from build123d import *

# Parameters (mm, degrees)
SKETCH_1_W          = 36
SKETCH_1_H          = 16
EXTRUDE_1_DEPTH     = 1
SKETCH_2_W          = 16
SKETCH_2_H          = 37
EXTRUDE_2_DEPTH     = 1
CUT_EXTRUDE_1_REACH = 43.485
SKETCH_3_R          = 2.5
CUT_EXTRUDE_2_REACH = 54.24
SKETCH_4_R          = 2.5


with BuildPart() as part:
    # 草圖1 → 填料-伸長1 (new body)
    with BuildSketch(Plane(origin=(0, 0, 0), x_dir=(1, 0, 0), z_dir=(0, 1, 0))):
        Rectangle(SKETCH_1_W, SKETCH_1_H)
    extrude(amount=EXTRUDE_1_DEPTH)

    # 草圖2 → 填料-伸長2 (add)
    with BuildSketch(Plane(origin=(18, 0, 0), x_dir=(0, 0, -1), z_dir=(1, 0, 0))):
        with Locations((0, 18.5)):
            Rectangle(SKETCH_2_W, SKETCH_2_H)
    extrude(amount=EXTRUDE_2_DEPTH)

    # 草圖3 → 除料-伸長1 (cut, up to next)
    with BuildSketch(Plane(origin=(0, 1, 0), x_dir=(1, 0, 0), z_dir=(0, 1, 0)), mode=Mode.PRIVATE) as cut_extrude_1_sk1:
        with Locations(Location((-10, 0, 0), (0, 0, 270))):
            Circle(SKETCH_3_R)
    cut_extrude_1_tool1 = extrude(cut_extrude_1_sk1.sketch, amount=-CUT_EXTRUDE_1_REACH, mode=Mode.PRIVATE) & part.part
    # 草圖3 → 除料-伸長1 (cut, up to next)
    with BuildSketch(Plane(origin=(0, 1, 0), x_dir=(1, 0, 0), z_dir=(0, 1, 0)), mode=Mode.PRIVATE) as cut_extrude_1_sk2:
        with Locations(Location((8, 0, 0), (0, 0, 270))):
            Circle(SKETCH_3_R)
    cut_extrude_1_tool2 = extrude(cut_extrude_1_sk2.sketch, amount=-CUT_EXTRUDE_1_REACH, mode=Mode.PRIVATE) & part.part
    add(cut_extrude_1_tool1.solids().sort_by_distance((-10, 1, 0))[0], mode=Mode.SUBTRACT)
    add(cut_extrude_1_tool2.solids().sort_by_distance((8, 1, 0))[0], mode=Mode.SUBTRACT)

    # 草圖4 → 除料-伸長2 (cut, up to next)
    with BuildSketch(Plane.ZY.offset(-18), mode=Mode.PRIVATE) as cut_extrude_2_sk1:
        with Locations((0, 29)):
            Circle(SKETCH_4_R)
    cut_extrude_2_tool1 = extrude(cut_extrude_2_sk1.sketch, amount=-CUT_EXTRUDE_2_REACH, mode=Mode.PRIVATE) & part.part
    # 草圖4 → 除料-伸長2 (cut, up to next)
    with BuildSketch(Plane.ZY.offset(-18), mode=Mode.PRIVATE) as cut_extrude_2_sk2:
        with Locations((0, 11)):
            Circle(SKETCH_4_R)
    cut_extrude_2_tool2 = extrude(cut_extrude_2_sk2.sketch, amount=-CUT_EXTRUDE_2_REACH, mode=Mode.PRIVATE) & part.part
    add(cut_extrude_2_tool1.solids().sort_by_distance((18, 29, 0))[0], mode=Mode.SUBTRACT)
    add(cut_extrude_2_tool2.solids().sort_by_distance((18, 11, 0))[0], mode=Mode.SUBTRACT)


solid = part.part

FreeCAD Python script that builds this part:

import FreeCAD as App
import Part
import Sketcher
from FreeCAD import Vector

doc = App.newDocument("Part")
body = doc.addObject("PartDesign::Body", "Body")

# Sketch on XZ plane
sketch1 = body.newObject("Sketcher::SketchObject", "Sketch")
sketch1.AttachmentSupport = (doc.getObject("XZ_Plane"), [""])
sketch1.MapMode = "FlatFace"
sketch1.addGeometry([
    Part.LineSegment(Vector(-18, -8, 0), Vector(-18, 8, 0)),
    Part.LineSegment(Vector(-18, 8, 0), Vector(18, 8, 0)),
    Part.LineSegment(Vector(18, 8, 0), Vector(18, -8, 0)),
    Part.LineSegment(Vector(18, -8, 0), Vector(-18, -8, 0)),
], False)
sketch1.addConstraint([
    Sketcher.Constraint("Coincident", 0, 2, 1, 1),
    Sketcher.Constraint("Coincident", 1, 2, 2, 1),
    Sketcher.Constraint("Coincident", 2, 2, 3, 1),
    Sketcher.Constraint("Coincident", 3, 2, 0, 1),
    Sketcher.Constraint("Vertical", 0),
    Sketcher.Constraint("Horizontal", 1),
    Sketcher.Constraint("Vertical", 2),
    Sketcher.Constraint("Horizontal", 3),
    Sketcher.Constraint("Symmetric", 0, 2, 2, 2, -1, 1),
    Sketcher.Constraint("DistanceX", 1, 1, 1, 2, 36.0),
    Sketcher.Constraint("DistanceY", 0, 1, 0, 2, 16.0),
])
pad1 = body.newObject("PartDesign::Pad", "Pad")
pad1.Profile = sketch1
pad1.Length = 1
pad1.Reversed = True

# Sketch on YZ plane
sketch2 = body.newObject("Sketcher::SketchObject", "Sketch001")
sketch2.AttachmentSupport = (doc.getObject("YZ_Plane"), [""])
sketch2.MapMode = "FlatFace"
sketch2.AttachmentOffset = App.Placement(Vector(0, 0, 18), App.Rotation())
sketch2.addGeometry([
    Part.LineSegment(Vector(37, 8, 0), Vector(0, 8, 0)),
    Part.LineSegment(Vector(0, 8, 0), Vector(0, -8, 0)),
    Part.LineSegment(Vector(0, -8, 0), Vector(37, -8, 0)),
    Part.LineSegment(Vector(37, -8, 0), Vector(37, 8, 0)),
], False)
sketch2.addConstraint([
    Sketcher.Constraint("Coincident", 0, 2, 1, 1),
    Sketcher.Constraint("Coincident", 1, 2, 2, 1),
    Sketcher.Constraint("Coincident", 2, 2, 3, 1),
    Sketcher.Constraint("Coincident", 3, 2, 0, 1),
    Sketcher.Constraint("Horizontal", 0),
    Sketcher.Constraint("Vertical", 1),
    Sketcher.Constraint("Horizontal", 2),
    Sketcher.Constraint("Vertical", 3),
    Sketcher.Constraint("Symmetric", 0, 2, 1, 2, -1, 1),
    Sketcher.Constraint("DistanceX", 0, 2, 0, 1, 37.0),
    Sketcher.Constraint("DistanceY", 1, 2, 1, 1, 16.0),
])
pad2 = body.newObject("PartDesign::Pad", "Pad001")
pad2.Profile = sketch2
pad2.Length = 1

# Sketch on XZ plane
sketch3 = body.newObject("Sketcher::SketchObject", "Sketch002")
sketch3.AttachmentSupport = (doc.getObject("XZ_Plane"), [""])
sketch3.MapMode = "FlatFace"
sketch3.AttachmentOffset = App.Placement(Vector(0, 0, -1), App.Rotation())
sketch3.addGeometry(Part.Circle(Vector(-10, 0, 0), Vector(0, 0, 1), 2.5), False)
sketch3.addConstraint([
    Sketcher.Constraint("PointOnObject", 0, 3, -1),
    Sketcher.Constraint("Diameter", 0, 5.0),
    Sketcher.Constraint("DistanceX", 0, 3, -1, 1, 10.0),
])
pocket1 = body.newObject("PartDesign::Pocket", "Pocket")
pocket1.Profile = sketch3
pocket1.Type = "UpToFirst"
pocket1.Reversed = True

# Sketch on XZ plane
sketch4 = body.newObject("Sketcher::SketchObject", "Sketch003")
sketch4.AttachmentSupport = (doc.getObject("XZ_Plane"), [""])
sketch4.MapMode = "FlatFace"
sketch4.AttachmentOffset = App.Placement(Vector(0, 0, -1), App.Rotation())
sketch4.addGeometry(Part.Circle(Vector(8, 0, 0), Vector(0, 0, 1), 2.5), False)
sketch4.addConstraint([
    Sketcher.Constraint("PointOnObject", 0, 3, -1),
    Sketcher.Constraint("Diameter", 0, 5.0),
    Sketcher.Constraint("DistanceX", -1, 1, 0, 3, 8.0),
])
pocket2 = body.newObject("PartDesign::Pocket", "Pocket001")
pocket2.Profile = sketch4
pocket2.Type = "UpToFirst"
pocket2.Reversed = True

# Sketch on YZ plane
sketch5 = body.newObject("Sketcher::SketchObject", "Sketch004")
sketch5.AttachmentSupport = (doc.getObject("YZ_Plane"), [""])
sketch5.MapMode = "FlatFace"
sketch5.AttachmentOffset = App.Placement(Vector(0, 0, 18), App.Rotation())
sketch5.addGeometry(Part.Circle(Vector(29, 0, 0), Vector(0, 0, 1), 2.5), False)
sketch5.addConstraint([
    Sketcher.Constraint("PointOnObject", 0, 3, -1),
    Sketcher.Constraint("Diameter", 0, 5.0),
    Sketcher.Constraint("DistanceX", -1, 1, 0, 3, 29.0),
])
pocket3 = body.newObject("PartDesign::Pocket", "Pocket002")
pocket3.Profile = sketch5
pocket3.Type = "UpToFirst"
pocket3.Reversed = True

# Sketch on YZ plane
sketch6 = body.newObject("Sketcher::SketchObject", "Sketch005")
sketch6.AttachmentSupport = (doc.getObject("YZ_Plane"), [""])
sketch6.MapMode = "FlatFace"
sketch6.AttachmentOffset = App.Placement(Vector(0, 0, 18), App.Rotation())
sketch6.addGeometry(Part.Circle(Vector(11, 0, 0), Vector(0, 0, 1), 2.5), False)
sketch6.addConstraint([
    Sketcher.Constraint("PointOnObject", 0, 3, -1),
    Sketcher.Constraint("Diameter", 0, 5.0),
    Sketcher.Constraint("DistanceX", -1, 1, 0, 3, 11.0),
])
pocket4 = body.newObject("PartDesign::Pocket", "Pocket003")
pocket4.Profile = sketch6
pocket4.Type = "UpToFirst"
pocket4.Reversed = True

doc.recompute()
